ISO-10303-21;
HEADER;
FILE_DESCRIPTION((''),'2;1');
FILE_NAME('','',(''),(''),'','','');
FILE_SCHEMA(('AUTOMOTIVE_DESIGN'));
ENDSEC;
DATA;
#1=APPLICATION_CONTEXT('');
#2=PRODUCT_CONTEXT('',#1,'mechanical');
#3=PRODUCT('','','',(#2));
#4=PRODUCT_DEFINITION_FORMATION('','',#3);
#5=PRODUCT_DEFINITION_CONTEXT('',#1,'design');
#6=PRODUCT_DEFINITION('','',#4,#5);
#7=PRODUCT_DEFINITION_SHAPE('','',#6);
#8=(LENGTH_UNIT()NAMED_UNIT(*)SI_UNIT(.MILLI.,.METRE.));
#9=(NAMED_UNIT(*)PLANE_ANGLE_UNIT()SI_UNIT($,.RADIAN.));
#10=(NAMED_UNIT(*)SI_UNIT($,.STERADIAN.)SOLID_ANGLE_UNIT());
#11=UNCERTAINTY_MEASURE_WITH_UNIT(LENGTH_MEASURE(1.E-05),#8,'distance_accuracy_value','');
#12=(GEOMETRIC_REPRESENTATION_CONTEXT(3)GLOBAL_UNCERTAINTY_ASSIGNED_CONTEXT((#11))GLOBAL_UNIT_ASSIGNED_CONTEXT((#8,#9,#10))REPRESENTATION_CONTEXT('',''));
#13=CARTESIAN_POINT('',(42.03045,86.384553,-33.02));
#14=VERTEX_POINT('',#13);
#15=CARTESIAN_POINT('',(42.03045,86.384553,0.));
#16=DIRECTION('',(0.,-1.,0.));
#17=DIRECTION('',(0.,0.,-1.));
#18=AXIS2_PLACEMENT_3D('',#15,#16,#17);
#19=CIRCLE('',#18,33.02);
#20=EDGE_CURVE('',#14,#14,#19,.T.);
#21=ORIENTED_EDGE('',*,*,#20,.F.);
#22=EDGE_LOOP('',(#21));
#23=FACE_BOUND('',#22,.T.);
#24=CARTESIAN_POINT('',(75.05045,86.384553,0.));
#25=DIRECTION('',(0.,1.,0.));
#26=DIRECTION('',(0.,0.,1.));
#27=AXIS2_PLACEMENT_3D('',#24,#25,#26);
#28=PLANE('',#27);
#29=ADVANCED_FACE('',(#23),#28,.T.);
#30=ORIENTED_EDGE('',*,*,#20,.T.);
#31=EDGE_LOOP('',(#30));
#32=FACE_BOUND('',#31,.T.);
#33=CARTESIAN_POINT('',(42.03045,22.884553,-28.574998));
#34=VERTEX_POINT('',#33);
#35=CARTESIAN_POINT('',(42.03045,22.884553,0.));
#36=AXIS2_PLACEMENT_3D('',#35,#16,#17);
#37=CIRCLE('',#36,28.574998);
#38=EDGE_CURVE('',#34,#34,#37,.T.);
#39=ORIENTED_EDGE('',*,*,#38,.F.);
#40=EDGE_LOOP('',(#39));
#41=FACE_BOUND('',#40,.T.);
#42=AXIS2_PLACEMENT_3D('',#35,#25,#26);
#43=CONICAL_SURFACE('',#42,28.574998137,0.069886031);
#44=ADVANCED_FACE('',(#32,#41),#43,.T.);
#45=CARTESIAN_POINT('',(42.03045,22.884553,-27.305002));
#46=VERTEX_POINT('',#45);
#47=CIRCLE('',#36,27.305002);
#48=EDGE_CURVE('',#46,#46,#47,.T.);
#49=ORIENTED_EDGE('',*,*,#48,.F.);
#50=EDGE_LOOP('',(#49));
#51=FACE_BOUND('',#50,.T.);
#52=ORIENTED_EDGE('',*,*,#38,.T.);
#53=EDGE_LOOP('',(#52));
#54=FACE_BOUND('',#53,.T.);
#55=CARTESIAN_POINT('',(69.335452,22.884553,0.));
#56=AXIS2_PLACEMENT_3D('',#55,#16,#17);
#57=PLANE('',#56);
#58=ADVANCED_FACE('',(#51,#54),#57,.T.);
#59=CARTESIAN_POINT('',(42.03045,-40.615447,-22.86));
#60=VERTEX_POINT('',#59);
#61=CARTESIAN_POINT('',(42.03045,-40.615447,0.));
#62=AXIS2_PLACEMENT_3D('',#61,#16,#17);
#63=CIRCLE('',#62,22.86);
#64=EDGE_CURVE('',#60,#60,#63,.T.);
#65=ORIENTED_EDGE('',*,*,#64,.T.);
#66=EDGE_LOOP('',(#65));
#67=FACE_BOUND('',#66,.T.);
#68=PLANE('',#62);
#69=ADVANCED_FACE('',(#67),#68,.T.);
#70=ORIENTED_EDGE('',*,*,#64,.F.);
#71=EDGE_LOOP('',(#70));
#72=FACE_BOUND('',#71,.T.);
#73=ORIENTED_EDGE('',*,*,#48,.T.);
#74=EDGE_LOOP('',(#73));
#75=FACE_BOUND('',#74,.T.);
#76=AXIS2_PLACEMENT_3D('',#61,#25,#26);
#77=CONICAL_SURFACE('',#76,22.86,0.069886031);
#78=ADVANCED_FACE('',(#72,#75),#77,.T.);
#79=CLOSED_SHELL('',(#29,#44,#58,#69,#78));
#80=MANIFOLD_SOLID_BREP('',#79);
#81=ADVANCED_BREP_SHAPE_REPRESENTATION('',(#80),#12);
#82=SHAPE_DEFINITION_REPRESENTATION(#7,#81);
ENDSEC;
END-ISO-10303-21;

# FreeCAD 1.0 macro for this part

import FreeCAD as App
import Part
import Sketcher

V = App.Vector
Q = App.Units.Quantity

doc = App.newDocument("Part")
body = doc.addObject("PartDesign::Body", "Body")

sketch1 = doc.addObject("Sketcher::SketchObject", "Sketch")
body.addObject(sketch1)
sketch1.AttachmentSupport = (doc.XY_Plane, [""])
sketch1.MapMode = "FlatFace"
sketch1.addGeometry(Part.LineSegment(V(42.03045, -40.615447, 0), V(64.89045, -40.615447, 0)), False)
sketch1.addGeometry(Part.LineSegment(V(64.89045, -40.615447, 0), V(69.335452, 22.884553, 0)), False)
sketch1.addGeometry(Part.LineSegment(V(69.335452, 22.884553, 0), V(70.605448, 22.884553, 0)), False)
sketch1.addGeometry(Part.LineSegment(V(70.605448, 22.884553, 0), V(75.05045, 86.384553, 0)), False)
sketch1.addGeometry(Part.LineSegment(V(75.05045, 86.384553, 0), V(42.03045, 86.384553, 0)), False)
sketch1.addGeometry(Part.LineSegment(V(42.03045, 86.384553, 0), V(42.03045, -40.615447, 0)), False)
sketch1.addGeometry(Part.LineSegment(V(42.03045, -40.615447, 0), V(42.03045, 86.384553, 0)), True)
sketch1.addConstraint(Sketcher.Constraint("Coincident", 0, 2, 1, 1))
sketch1.addConstraint(Sketcher.Constraint("Coincident", 1, 2, 2, 1))
sketch1.addConstraint(Sketcher.Constraint("Coincident", 2, 2, 3, 1))
sketch1.addConstraint(Sketcher.Constraint("Coincident", 3, 2, 4, 1))
sketch1.addConstraint(Sketcher.Constraint("Coincident", 4, 2, 5, 1))
sketch1.addConstraint(Sketcher.Constraint("Coincident", 5, 2, 0, 1))
sketch1.addConstraint(Sketcher.Constraint("Horizontal", 0))
sketch1.addConstraint(Sketcher.Constraint("Horizontal", 2))
sketch1.addConstraint(Sketcher.Constraint("Horizontal", 4))
sketch1.addConstraint(Sketcher.Constraint("Vertical", 5))
sketch1.addConstraint(Sketcher.Constraint("Vertical", 6))
sketch1.addConstraint(Sketcher.Constraint("Coincident", 6, 1, 5, 2))
sketch1.addConstraint(Sketcher.Constraint("Parallel", 1, 3))
sketch1.addConstraint(Sketcher.Constraint("Horizontal", 3, 2, 6, 2))
sketch1.addConstraint(Sketcher.Constraint("Equal", 1, 3))
sketch1.addConstraint(Sketcher.Constraint("DistanceY", 5, 2, 5, 1, Q("5 in")))
sketch1.addConstraint(Sketcher.Constraint("DistanceX", 0, 1, 0, 2, Q("0.9 in")))
sketch1.addConstraint(Sketcher.Constraint("DistanceX", 4, 2, 4, 1, Q("1.3 in")))
sketch1.addConstraint(Sketcher.Constraint("DistanceX", 2, 1, 2, 2, Q("0.0499999 in")))
sketch1.addConstraint(Sketcher.Constraint("DistanceX", -1, 1, 0, 2, Q("64.89045 mm")))
sketch1.addConstraint(Sketcher.Constraint("DistanceY", 0, 2, -1, 1, Q("40.615447 mm")))
revolution = doc.addObject("PartDesign::Revolution", "Revolution")
body.addObject(revolution)
revolution.Profile = sketch1
revolution.ReferenceAxis = (sketch1, ["Axis0"])
revolution.Angle = 360

doc.recompute()
